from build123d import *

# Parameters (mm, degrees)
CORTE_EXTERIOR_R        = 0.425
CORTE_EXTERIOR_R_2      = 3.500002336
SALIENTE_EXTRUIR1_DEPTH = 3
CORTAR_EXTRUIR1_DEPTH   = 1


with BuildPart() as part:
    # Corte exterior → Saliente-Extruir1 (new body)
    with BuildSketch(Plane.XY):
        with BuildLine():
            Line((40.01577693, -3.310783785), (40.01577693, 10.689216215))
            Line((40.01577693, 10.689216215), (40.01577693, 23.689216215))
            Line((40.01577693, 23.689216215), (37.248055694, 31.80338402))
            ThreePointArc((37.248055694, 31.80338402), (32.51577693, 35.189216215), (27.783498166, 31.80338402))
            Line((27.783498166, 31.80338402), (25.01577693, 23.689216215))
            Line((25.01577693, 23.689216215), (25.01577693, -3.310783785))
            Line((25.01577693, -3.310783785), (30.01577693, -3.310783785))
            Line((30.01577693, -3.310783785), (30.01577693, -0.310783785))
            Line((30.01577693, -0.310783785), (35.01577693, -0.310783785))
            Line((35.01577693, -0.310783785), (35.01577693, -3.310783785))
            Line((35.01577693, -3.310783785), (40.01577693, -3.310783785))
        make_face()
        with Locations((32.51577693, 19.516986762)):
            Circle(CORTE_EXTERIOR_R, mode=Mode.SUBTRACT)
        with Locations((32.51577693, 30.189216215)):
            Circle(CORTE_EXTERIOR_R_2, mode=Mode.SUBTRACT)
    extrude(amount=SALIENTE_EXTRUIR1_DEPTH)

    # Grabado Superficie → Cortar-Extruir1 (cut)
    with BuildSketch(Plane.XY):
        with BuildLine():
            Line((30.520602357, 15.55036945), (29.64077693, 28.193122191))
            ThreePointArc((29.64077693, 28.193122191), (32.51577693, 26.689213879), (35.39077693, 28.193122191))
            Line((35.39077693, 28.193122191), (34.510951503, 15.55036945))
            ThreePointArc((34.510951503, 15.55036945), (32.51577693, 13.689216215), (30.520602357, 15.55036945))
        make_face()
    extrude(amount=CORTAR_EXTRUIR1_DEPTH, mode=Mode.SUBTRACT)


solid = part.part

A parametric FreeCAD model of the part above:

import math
import FreeCAD as App
import Part
import Sketcher

doc = App.newDocument("Part")
params = doc.addObject("Spreadsheet::Sheet", "Params")
for row, (alias, value) in enumerate([
    ("sketch1_radius", "5 mm"),
    ("sketch1_diameter", "0.85 mm"),
    ("sketch1_width", "5 mm"),
    ("sketch1_height", "27 mm"),
    ("sketch1_height2", "3 mm"),
    ("pad1_length", "3 mm"),
    ("sketch2_radius", "2 mm"),
    ("pocket1_length", "1 mm"),
], start=1):
    params.set(f"A{row}", alias)
    params.set(f"B{row}", "=" + value)
    params.setAlias(f"B{row}", alias)

body = doc.addObject("PartDesign::Body", "Body")

# Sketch on XY plane
sketch1 = body.newObject("Sketcher::SketchObject", "Sketch")
sketch1.AttachmentSupport = (doc.getObject("XY_Plane"), [""])
sketch1.MapMode = "FlatFace"
sketch1.addGeometry(Part.LineSegment(App.Vector(40.015777, -3.310784, 0), App.Vector(40.015777, 23.689216, 0)), False)
sketch1.addGeometry(Part.LineSegment(App.Vector(40.015777, 23.689216, 0), App.Vector(37.248056, 31.803384, 0)), False)
sketch1.addGeometry(Part.ArcOfCircle(Part.Circle(App.Vector(32.515777, 30.189216, 0), App.Vector(0, 0, 1), 5), math.radians(18.834373), math.radians(161.165627)), False)
sketch1.addGeometry(Part.LineSegment(App.Vector(27.783498, 31.803384, 0), App.Vector(25.015777, 23.689216, 0)), False)
sketch1.addGeometry(Part.LineSegment(App.Vector(25.015777, 23.689216, 0), App.Vector(25.015777, -3.310784, 0)), False)
sketch1.addGeometry(Part.LineSegment(App.Vector(25.015777, -3.310784, 0), App.Vector(30.015777, -3.310784, 0)), False)
sketch1.addGeometry(Part.LineSegment(App.Vector(30.015777, -3.310784, 0), App.Vector(30.015777, -0.310784, 0)), False)
sketch1.addGeometry(Part.LineSegment(App.Vector(30.015777, -0.310784, 0), App.Vector(35.015777, -0.310784, 0)), False)
sketch1.addGeometry(Part.LineSegment(App.Vector(35.015777, -0.310784, 0), App.Vector(35.015777, -3.310784, 0)), False)
sketch1.addGeometry(Part.LineSegment(App.Vector(35.015777, -3.310784, 0), App.Vector(40.015777, -3.310784, 0)), False)
sketch1.addGeometry(Part.Circle(App.Vector(32.515777, 19.516987, 0), App.Vector(0, 0, 1), 0.425), False)
sketch1.addGeometry(Part.Circle(App.Vector(32.515777, 30.189216, 0), App.Vector(0, 0, 1), 3.500002), False)
sketch1.addConstraint(Sketcher.Constraint("Coincident", 0, 2, 1, 1))
sketch1.addConstraint(Sketcher.Constraint("Tangent", 1, 2, 2, 1))
sketch1.addConstraint(Sketcher.Constraint("Tangent", 2, 2, 3, 1))
sketch1.addConstraint(Sketcher.Constraint("Coincident", 3, 2, 4, 1))
sketch1.addConstraint(Sketcher.Constraint("Coincident", 4, 2, 5, 1))
sketch1.addConstraint(Sketcher.Constraint("Coincident", 5, 2, 6, 1))
sketch1.addConstraint(Sketcher.Constraint("Coincident", 6, 2, 7, 1))
sketch1.addConstraint(Sketcher.Constraint("Coincident", 7, 2, 8, 1))
sketch1.addConstraint(Sketcher.Constraint("Coincident", 8, 2, 9, 1))
sketch1.addConstraint(Sketcher.Constraint("Coincident", 9, 2, 0, 1))
sketch1.addConstraint(Sketcher.Constraint("Vertical", 0))
sketch1.addConstraint(Sketcher.Constraint("Vertical", 4))
sketch1.addConstraint(Sketcher.Constraint("Horizontal", 5))
sketch1.addConstraint(Sketcher.Constraint("Vertical", 6))
sketch1.addConstraint(Sketcher.Constraint("Horizontal", 7))
sketch1.addConstraint(Sketcher.Constraint("Vertical", 8))
sketch1.addConstraint(Sketcher.Constraint("Horizontal", 9))
sketch1.addConstraint(Sketcher.Constraint("Coincident", 11, 3, 2, 3))
sketch1.addConstraint(Sketcher.Constraint("Horizontal", 1, 2, 2, 2))
sketch1.addConstraint(Sketcher.Constraint("Horizontal", 0, 2, 3, 2))
sketch1.addConstraint(Sketcher.Constraint("Horizontal", 5, 2, 8, 2))
sketch1.addConstraint(Sketcher.Constraint("Vertical", 2, 3, 10, 3))
sketch1.addConstraint(Sketcher.Constraint("Equal", 5, 7))
sketch1.addConstraint(Sketcher.Constraint("Equal", 7, 9))
sketch1.addConstraint(Sketcher.Constraint("Radius", 2, 5.0))
sketch1.addConstraint(Sketcher.Constraint("Diameter", 10, 0.85))
sketch1.addConstraint(Sketcher.Constraint("DistanceX", 5, 1, 5, 2, 5.0))
sketch1.addConstraint(Sketcher.Constraint("DistanceY", 0, 1, 0, 2, 27.0))
sketch1.addConstraint(Sketcher.Constraint("DistanceY", 6, 1, 6, 2, 3.0))
sketch1.addConstraint(Sketcher.Constraint("DistanceY", 0, 2, 2, 3, 6.5))
sketch1.addConstraint(Sketcher.Constraint("Diameter", 11, 7.000005))
sketch1.addConstraint(Sketcher.Constraint("DistanceX", -1, 1, 2, 2, 27.783498))
sketch1.addConstraint(Sketcher.Constraint("DistanceY", 10, 3, 2, 3, 10.672229))
sketch1.addConstraint(Sketcher.Constraint("DistanceY", -1, 1, 2, 3, 30.189216))
sketch1.setExpression("Constraints[24]", "Params.sketch1_radius")
sketch1.setExpression("Constraints[25]", "Params.sketch1_diameter")
sketch1.setExpression("Constraints[26]", "Params.sketch1_width")
sketch1.setExpression("Constraints[27]", "Params.sketch1_height")
sketch1.setExpression("Constraints[28]", "Params.sketch1_height2")
pad1 = body.newObject("PartDesign::Pad", "Pad")
pad1.Profile = sketch1
pad1.setExpression("Length", "Params.pad1_length")

# Sketch on XY plane
sketch2 = body.newObject("Sketcher::SketchObject", "Sketch001")
sketch2.AttachmentSupport = (doc.getObject("XY_Plane"), [""])
sketch2.MapMode = "FlatFace"
sketch2.addGeometry(Part.LineSegment(App.Vector(29.640777, 28.193122, 0), App.Vector(30.520602, 15.550369, 0)), False)
sketch2.addGeometry(Part.ArcOfCircle(Part.Circle(App.Vector(32.515777, 15.689216, 0), App.Vector(0, 0, 1), 2), math.radians(-176.019131), math.radians(-3.980869)), False)
sketch2.addGeometry(Part.LineSegment(App.Vector(34.510952, 15.550369, 0), App.Vector(35.390777, 28.193122, 0)), False)
sketch2.addGeometry(Part.ArcOfCircle(Part.Circle(App.Vector(32.515777, 30.189216, 0), App.Vector(0, 0, 1), 3.500002), math.radians(-145.228001), math.radians(-34.771999)), False)
sketch2.addConstraint(Sketcher.Constraint("Tangent", 0, 2, 1, 1))
sketch2.addConstraint(Sketcher.Constraint("Tangent", 1, 2, 2, 1))
sketch2.addConstraint(Sketcher.Constraint("Coincident", 2, 2, 3, 2))
sketch2.addConstraint(Sketcher.Constraint("Coincident", 3, 1, 0, 1))
sketch2.addConstraint(Sketcher.Constraint("Horizontal", 0, 2, 1, 2))
sketch2.addConstraint(Sketcher.Constraint("Horizontal", 2, 2, 3, 1))
sketch2.addConstraint(Sketcher.Constraint("Radius", 1, 2.0))
sketch2.addConstraint(Sketcher.Constraint("DistanceY", 1, 3, 3, 3, 14.5))
sketch2.addConstraint(Sketcher.Constraint("DistanceX", 3, 1, 2, 2, 5.75))
sketch2.addConstraint(Sketcher.Constraint("Radius", 3, 3.500002))
sketch2.addConstraint(Sketcher.Constraint("DistanceY", -1, 1, 0, 2, 15.550369))
sketch2.addConstraint(Sketcher.Constraint("DistanceX", -1, 1, 1, 2, 34.510952))
sketch2.setExpression("Constraints[6]", "Params.sketch2_radius")
pocket1 = body.newObject("PartDesign::Pocket", "Pocket")
pocket1.Profile = sketch2
pocket1.setExpression("Length", "Params.pocket1_length")
pocket1.Reversed = True

doc.recompute()
